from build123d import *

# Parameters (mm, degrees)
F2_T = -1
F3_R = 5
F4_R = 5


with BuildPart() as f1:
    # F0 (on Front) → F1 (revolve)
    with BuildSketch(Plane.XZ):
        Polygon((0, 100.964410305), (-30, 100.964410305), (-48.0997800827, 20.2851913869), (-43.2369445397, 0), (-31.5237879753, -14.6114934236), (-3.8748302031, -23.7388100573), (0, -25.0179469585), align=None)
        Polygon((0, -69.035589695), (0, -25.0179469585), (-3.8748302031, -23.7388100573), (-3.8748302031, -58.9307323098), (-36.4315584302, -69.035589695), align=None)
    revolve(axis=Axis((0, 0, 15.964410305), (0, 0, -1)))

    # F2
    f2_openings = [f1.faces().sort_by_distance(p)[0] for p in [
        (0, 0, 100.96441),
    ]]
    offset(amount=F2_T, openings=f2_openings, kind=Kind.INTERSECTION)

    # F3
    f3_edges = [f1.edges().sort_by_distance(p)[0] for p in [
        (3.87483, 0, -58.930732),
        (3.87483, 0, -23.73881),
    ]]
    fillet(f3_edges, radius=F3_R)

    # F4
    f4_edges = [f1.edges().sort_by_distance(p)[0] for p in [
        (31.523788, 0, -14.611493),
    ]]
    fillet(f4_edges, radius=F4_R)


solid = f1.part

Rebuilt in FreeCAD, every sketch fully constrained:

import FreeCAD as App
import Part
import Sketcher


def edges_at(feature, points):
    """Names of the edges that pass closest to the given points."""
    edges = feature.Shape.Edges
    near = lambda p: min(range(len(edges)), key=lambda i: edges[i].distToShape(Part.Vertex(*p))[0])
    return sorted({f"Edge{near(p) + 1}" for p in points})


def faces_at(feature, points):
    """Names of the faces that lie closest to the given points."""
    faces = feature.Shape.Faces
    near = lambda p: min(range(len(faces)), key=lambda i: faces[i].distToShape(Part.Vertex(*p))[0])
    return sorted({f"Face{near(p) + 1}" for p in points})

doc = App.newDocument("Part")
body = doc.addObject("PartDesign::Body", "Body")

# Sketch on XZ plane
sketch1 = body.newObject("Sketcher::SketchObject", "Sketch")
sketch1.AttachmentSupport = (doc.getObject("XZ_Plane"), [""])
sketch1.MapMode = "FlatFace"
sketch1.addGeometry(Part.LineSegment(App.Vector(0, 101, 0), App.Vector(-30, 101, 0)), False)
sketch1.addGeometry(Part.LineSegment(App.Vector(-30, 101, 0), App.Vector(-48, 20, 0)), False)
sketch1.addGeometry(Part.LineSegment(App.Vector(-48, 20, 0), App.Vector(-43, 0, 0)), False)
sketch1.addGeometry(Part.LineSegment(App.Vector(-43, 0, 0), App.Vector(-32, -15, 0)), False)
sketch1.addGeometry(Part.LineSegment(App.Vector(-32, -15, 0), App.Vector(-4, -24, 0)), False)
sketch1.addGeometry(Part.LineSegment(App.Vector(-4, -24, 0), App.Vector(-4, -59, 0)), False)
sketch1.addGeometry(Part.LineSegment(App.Vector(-4, -59, 0), App.Vector(-36, -69, 0)), False)
sketch1.addGeometry(Part.LineSegment(App.Vector(-36, -69, 0), App.Vector(0, -69, 0)), False)
sketch1.addGeometry(Part.LineSegment(App.Vector(0, -69, 0), App.Vector(0, 101, 0)), False)
sketch1.addConstraint(Sketcher.Constraint("Coincident", 0, 2, 1, 1))
sketch1.addConstraint(Sketcher.Constraint("Coincident", 1, 2, 2, 1))
sketch1.addConstraint(Sketcher.Constraint("Coincident", 2, 2, 3, 1))
sketch1.addConstraint(Sketcher.Constraint("Coincident", 3, 2, 4, 1))
sketch1.addConstraint(Sketcher.Constraint("Coincident", 4, 2, 5, 1))
sketch1.addConstraint(Sketcher.Constraint("Coincident", 5, 2, 6, 1))
sketch1.addConstraint(Sketcher.Constraint("Coincident", 6, 2, 7, 1))
sketch1.addConstraint(Sketcher.Constraint("Coincident", 7, 2, 8, 1))
sketch1.addConstraint(Sketcher.Constraint("Coincident", 8, 2, 0, 1))
sketch1.addConstraint(Sketcher.Constraint("Horizontal", 0))
sketch1.addConstraint(Sketcher.Constraint("Vertical", 5))
sketch1.addConstraint(Sketcher.Constraint("Horizontal", 7))
sketch1.addConstraint(Sketcher.Constraint("Vertical", 8))
sketch1.addConstraint(Sketcher.Constraint("PointOnObject", 2, 2, -1))
sketch1.addConstraint(Sketcher.Constraint("PointOnObject", 7, 2, -2))
sketch1.addConstraint(Sketcher.Constraint("DistanceX", 0, 2, 0, 1, 30.0))
sketch1.addConstraint(Sketcher.Constraint("DistanceY", 8, 1, 8, 2, 170.0))
sketch1.addConstraint(Sketcher.Constraint("DistanceY", 4, 2, 1, 2, 44.024001))
sketch1.addConstraint(Sketcher.Constraint("DistanceX", 7, 1, 7, 2, 36.431558))
sketch1.addConstraint(Sketcher.Constraint("Distance", 1, 82.684572))
sketch1.addConstraint(Sketcher.Constraint("Distance", 3, 18.72682))
sketch1.addConstraint(Sketcher.Constraint("DistanceY", 5, 2, 5, 1, 35.191922))
sketch1.addConstraint(Sketcher.Constraint("DistanceY", -1, 1, 0, 2, 100.96441))
sketch1.addConstraint(Sketcher.Constraint("DistanceX", 1, 2, -1, 1, 48.09978))
sketch1.addConstraint(Sketcher.Constraint("DistanceX", 4, 2, -1, 1, 3.87483))
sketch1.addConstraint(Sketcher.Constraint("DistanceY", 5, 2, 3, 2, 44.319239))
sketch1.addConstraint(Sketcher.Constraint("DistanceX", 6, 2, 3, 2, 4.90777))
revolution = body.newObject("PartDesign::Revolution", "Revolution")
revolution.Profile = sketch1
revolution.ReferenceAxis = (sketch1, ["V_Axis"])
revolution.Angle = 360
doc.recompute()

thickness = body.newObject("PartDesign::Thickness", "Thickness")
thickness.Base = (revolution, faces_at(revolution, [(0, 0, 100.964)]))
thickness.Value = 1
thickness.Reversed = True
thickness.Join = "Intersection"
doc.recompute()

fillet = body.newObject("PartDesign::Fillet", "Fillet")
fillet.Base = (thickness, edges_at(thickness, [(3.875, 0, -58.931), (3.875, 0, -23.739)]))
fillet.Radius = 5
doc.recompute()

fillet2 = body.newObject("PartDesign::Fillet", "Fillet001")
fillet2.Base = (fillet, edges_at(fillet, [(31.524, 0, -14.611)]))
fillet2.Radius = 5

doc.recompute()
